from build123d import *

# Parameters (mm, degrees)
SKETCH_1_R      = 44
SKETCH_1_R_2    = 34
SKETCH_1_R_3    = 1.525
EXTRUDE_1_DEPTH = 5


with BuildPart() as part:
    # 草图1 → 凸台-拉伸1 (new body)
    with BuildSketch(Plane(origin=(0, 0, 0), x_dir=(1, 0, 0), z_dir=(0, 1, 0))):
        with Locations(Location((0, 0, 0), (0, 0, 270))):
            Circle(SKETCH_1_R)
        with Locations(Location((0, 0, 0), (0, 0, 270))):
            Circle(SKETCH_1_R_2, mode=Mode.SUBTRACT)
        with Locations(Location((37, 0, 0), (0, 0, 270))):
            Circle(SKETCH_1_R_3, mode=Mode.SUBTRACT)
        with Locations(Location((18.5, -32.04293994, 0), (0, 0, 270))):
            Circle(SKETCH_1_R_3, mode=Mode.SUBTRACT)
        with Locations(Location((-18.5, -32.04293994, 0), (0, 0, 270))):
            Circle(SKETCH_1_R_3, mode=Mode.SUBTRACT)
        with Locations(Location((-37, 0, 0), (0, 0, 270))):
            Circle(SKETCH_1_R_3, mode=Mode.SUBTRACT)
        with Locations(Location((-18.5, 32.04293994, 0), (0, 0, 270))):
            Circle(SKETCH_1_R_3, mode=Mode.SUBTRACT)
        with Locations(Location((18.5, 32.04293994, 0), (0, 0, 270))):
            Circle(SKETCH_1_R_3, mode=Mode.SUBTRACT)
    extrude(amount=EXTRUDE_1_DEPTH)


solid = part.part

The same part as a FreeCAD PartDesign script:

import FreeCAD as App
import Part
import Sketcher

V = App.Vector

doc = App.newDocument("Part")
body = doc.addObject("PartDesign::Body", "Body")

sketch1 = body.newObject("Sketcher::SketchObject", "Sketch")
sketch1.AttachmentSupport = (doc.getObject("XZ_Plane"), [""])
sketch1.MapMode = "FlatFace"
sketch1.addGeometry(Part.Circle(V(0, 0, 0), V(0, 0, 1), 44), False)
sketch1.addGeometry(Part.Circle(V(-18.5, -32.04294, 0), V(0, 0, 1), 1.525), False)
sketch1.addGeometry(Part.Circle(V(-37, 0, 0), V(0, 0, 1), 1.525), False)
sketch1.addGeometry(Part.Circle(V(-18.5, 32.04294, 0), V(0, 0, 1), 1.525), False)
sketch1.addGeometry(Part.Circle(V(18.5, -32.04294, 0), V(0, 0, 1), 1.525), False)
sketch1.addGeometry(Part.Circle(V(37, 0, 0), V(0, 0, 1), 1.525), False)
sketch1.addGeometry(Part.Circle(V(0, 0, 0), V(0, 0, 1), 34), False)
sketch1.addGeometry(Part.Circle(V(18.5, 32.04294, 0), V(0, 0, 1), 1.525), False)
sketch1.addConstraint(Sketcher.Constraint("Coincident", 0, 3, -1, 1))
sketch1.addConstraint(Sketcher.Constraint("Coincident", 6, 3, -1, 1))
sketch1.addConstraint(Sketcher.Constraint("Equal", 1, 2))
sketch1.addConstraint(Sketcher.Constraint("Equal", 2, 3))
sketch1.addConstraint(Sketcher.Constraint("Equal", 3, 4))
sketch1.addConstraint(Sketcher.Constraint("Equal", 4, 5))
sketch1.addConstraint(Sketcher.Constraint("Equal", 5, 7))
sketch1.addConstraint(Sketcher.Constraint("Symmetric", 3, 3, 4, 3, -1, 1))
sketch1.addConstraint(Sketcher.Constraint("Symmetric", 2, 3, 5, 3, -1, 1))
sketch1.addConstraint(Sketcher.Constraint("Symmetric", 1, 3, 7, 3, -1, 1))
sketch1.addConstraint(Sketcher.Constraint("Symmetric", 1, 3, 4, 3, -2))
sketch1.addConstraint(Sketcher.Constraint("PointOnObject", 2, 3, -1))
sketch1.addConstraint(Sketcher.Constraint("Diameter", 0, 88.0))
sketch1.addConstraint(Sketcher.Constraint("Diameter", 6, 68.0))
sketch1.addConstraint(Sketcher.Constraint("Diameter", 1, 3.05))
sketch1.addConstraint(Sketcher.Constraint("DistanceX", 2, 3, -1, 1, 37.0))
sketch1.addConstraint(Sketcher.Constraint("DistanceX", 1, 3, 4, 3, 37.0))
sketch1.addConstraint(Sketcher.Constraint("DistanceY", 1, 3, -1, 1, 32.04294))
pad1 = body.newObject("PartDesign::Pad", "Pad")
pad1.Profile = sketch1
pad1.Length = 5
pad1.Reversed = True

doc.recompute()
